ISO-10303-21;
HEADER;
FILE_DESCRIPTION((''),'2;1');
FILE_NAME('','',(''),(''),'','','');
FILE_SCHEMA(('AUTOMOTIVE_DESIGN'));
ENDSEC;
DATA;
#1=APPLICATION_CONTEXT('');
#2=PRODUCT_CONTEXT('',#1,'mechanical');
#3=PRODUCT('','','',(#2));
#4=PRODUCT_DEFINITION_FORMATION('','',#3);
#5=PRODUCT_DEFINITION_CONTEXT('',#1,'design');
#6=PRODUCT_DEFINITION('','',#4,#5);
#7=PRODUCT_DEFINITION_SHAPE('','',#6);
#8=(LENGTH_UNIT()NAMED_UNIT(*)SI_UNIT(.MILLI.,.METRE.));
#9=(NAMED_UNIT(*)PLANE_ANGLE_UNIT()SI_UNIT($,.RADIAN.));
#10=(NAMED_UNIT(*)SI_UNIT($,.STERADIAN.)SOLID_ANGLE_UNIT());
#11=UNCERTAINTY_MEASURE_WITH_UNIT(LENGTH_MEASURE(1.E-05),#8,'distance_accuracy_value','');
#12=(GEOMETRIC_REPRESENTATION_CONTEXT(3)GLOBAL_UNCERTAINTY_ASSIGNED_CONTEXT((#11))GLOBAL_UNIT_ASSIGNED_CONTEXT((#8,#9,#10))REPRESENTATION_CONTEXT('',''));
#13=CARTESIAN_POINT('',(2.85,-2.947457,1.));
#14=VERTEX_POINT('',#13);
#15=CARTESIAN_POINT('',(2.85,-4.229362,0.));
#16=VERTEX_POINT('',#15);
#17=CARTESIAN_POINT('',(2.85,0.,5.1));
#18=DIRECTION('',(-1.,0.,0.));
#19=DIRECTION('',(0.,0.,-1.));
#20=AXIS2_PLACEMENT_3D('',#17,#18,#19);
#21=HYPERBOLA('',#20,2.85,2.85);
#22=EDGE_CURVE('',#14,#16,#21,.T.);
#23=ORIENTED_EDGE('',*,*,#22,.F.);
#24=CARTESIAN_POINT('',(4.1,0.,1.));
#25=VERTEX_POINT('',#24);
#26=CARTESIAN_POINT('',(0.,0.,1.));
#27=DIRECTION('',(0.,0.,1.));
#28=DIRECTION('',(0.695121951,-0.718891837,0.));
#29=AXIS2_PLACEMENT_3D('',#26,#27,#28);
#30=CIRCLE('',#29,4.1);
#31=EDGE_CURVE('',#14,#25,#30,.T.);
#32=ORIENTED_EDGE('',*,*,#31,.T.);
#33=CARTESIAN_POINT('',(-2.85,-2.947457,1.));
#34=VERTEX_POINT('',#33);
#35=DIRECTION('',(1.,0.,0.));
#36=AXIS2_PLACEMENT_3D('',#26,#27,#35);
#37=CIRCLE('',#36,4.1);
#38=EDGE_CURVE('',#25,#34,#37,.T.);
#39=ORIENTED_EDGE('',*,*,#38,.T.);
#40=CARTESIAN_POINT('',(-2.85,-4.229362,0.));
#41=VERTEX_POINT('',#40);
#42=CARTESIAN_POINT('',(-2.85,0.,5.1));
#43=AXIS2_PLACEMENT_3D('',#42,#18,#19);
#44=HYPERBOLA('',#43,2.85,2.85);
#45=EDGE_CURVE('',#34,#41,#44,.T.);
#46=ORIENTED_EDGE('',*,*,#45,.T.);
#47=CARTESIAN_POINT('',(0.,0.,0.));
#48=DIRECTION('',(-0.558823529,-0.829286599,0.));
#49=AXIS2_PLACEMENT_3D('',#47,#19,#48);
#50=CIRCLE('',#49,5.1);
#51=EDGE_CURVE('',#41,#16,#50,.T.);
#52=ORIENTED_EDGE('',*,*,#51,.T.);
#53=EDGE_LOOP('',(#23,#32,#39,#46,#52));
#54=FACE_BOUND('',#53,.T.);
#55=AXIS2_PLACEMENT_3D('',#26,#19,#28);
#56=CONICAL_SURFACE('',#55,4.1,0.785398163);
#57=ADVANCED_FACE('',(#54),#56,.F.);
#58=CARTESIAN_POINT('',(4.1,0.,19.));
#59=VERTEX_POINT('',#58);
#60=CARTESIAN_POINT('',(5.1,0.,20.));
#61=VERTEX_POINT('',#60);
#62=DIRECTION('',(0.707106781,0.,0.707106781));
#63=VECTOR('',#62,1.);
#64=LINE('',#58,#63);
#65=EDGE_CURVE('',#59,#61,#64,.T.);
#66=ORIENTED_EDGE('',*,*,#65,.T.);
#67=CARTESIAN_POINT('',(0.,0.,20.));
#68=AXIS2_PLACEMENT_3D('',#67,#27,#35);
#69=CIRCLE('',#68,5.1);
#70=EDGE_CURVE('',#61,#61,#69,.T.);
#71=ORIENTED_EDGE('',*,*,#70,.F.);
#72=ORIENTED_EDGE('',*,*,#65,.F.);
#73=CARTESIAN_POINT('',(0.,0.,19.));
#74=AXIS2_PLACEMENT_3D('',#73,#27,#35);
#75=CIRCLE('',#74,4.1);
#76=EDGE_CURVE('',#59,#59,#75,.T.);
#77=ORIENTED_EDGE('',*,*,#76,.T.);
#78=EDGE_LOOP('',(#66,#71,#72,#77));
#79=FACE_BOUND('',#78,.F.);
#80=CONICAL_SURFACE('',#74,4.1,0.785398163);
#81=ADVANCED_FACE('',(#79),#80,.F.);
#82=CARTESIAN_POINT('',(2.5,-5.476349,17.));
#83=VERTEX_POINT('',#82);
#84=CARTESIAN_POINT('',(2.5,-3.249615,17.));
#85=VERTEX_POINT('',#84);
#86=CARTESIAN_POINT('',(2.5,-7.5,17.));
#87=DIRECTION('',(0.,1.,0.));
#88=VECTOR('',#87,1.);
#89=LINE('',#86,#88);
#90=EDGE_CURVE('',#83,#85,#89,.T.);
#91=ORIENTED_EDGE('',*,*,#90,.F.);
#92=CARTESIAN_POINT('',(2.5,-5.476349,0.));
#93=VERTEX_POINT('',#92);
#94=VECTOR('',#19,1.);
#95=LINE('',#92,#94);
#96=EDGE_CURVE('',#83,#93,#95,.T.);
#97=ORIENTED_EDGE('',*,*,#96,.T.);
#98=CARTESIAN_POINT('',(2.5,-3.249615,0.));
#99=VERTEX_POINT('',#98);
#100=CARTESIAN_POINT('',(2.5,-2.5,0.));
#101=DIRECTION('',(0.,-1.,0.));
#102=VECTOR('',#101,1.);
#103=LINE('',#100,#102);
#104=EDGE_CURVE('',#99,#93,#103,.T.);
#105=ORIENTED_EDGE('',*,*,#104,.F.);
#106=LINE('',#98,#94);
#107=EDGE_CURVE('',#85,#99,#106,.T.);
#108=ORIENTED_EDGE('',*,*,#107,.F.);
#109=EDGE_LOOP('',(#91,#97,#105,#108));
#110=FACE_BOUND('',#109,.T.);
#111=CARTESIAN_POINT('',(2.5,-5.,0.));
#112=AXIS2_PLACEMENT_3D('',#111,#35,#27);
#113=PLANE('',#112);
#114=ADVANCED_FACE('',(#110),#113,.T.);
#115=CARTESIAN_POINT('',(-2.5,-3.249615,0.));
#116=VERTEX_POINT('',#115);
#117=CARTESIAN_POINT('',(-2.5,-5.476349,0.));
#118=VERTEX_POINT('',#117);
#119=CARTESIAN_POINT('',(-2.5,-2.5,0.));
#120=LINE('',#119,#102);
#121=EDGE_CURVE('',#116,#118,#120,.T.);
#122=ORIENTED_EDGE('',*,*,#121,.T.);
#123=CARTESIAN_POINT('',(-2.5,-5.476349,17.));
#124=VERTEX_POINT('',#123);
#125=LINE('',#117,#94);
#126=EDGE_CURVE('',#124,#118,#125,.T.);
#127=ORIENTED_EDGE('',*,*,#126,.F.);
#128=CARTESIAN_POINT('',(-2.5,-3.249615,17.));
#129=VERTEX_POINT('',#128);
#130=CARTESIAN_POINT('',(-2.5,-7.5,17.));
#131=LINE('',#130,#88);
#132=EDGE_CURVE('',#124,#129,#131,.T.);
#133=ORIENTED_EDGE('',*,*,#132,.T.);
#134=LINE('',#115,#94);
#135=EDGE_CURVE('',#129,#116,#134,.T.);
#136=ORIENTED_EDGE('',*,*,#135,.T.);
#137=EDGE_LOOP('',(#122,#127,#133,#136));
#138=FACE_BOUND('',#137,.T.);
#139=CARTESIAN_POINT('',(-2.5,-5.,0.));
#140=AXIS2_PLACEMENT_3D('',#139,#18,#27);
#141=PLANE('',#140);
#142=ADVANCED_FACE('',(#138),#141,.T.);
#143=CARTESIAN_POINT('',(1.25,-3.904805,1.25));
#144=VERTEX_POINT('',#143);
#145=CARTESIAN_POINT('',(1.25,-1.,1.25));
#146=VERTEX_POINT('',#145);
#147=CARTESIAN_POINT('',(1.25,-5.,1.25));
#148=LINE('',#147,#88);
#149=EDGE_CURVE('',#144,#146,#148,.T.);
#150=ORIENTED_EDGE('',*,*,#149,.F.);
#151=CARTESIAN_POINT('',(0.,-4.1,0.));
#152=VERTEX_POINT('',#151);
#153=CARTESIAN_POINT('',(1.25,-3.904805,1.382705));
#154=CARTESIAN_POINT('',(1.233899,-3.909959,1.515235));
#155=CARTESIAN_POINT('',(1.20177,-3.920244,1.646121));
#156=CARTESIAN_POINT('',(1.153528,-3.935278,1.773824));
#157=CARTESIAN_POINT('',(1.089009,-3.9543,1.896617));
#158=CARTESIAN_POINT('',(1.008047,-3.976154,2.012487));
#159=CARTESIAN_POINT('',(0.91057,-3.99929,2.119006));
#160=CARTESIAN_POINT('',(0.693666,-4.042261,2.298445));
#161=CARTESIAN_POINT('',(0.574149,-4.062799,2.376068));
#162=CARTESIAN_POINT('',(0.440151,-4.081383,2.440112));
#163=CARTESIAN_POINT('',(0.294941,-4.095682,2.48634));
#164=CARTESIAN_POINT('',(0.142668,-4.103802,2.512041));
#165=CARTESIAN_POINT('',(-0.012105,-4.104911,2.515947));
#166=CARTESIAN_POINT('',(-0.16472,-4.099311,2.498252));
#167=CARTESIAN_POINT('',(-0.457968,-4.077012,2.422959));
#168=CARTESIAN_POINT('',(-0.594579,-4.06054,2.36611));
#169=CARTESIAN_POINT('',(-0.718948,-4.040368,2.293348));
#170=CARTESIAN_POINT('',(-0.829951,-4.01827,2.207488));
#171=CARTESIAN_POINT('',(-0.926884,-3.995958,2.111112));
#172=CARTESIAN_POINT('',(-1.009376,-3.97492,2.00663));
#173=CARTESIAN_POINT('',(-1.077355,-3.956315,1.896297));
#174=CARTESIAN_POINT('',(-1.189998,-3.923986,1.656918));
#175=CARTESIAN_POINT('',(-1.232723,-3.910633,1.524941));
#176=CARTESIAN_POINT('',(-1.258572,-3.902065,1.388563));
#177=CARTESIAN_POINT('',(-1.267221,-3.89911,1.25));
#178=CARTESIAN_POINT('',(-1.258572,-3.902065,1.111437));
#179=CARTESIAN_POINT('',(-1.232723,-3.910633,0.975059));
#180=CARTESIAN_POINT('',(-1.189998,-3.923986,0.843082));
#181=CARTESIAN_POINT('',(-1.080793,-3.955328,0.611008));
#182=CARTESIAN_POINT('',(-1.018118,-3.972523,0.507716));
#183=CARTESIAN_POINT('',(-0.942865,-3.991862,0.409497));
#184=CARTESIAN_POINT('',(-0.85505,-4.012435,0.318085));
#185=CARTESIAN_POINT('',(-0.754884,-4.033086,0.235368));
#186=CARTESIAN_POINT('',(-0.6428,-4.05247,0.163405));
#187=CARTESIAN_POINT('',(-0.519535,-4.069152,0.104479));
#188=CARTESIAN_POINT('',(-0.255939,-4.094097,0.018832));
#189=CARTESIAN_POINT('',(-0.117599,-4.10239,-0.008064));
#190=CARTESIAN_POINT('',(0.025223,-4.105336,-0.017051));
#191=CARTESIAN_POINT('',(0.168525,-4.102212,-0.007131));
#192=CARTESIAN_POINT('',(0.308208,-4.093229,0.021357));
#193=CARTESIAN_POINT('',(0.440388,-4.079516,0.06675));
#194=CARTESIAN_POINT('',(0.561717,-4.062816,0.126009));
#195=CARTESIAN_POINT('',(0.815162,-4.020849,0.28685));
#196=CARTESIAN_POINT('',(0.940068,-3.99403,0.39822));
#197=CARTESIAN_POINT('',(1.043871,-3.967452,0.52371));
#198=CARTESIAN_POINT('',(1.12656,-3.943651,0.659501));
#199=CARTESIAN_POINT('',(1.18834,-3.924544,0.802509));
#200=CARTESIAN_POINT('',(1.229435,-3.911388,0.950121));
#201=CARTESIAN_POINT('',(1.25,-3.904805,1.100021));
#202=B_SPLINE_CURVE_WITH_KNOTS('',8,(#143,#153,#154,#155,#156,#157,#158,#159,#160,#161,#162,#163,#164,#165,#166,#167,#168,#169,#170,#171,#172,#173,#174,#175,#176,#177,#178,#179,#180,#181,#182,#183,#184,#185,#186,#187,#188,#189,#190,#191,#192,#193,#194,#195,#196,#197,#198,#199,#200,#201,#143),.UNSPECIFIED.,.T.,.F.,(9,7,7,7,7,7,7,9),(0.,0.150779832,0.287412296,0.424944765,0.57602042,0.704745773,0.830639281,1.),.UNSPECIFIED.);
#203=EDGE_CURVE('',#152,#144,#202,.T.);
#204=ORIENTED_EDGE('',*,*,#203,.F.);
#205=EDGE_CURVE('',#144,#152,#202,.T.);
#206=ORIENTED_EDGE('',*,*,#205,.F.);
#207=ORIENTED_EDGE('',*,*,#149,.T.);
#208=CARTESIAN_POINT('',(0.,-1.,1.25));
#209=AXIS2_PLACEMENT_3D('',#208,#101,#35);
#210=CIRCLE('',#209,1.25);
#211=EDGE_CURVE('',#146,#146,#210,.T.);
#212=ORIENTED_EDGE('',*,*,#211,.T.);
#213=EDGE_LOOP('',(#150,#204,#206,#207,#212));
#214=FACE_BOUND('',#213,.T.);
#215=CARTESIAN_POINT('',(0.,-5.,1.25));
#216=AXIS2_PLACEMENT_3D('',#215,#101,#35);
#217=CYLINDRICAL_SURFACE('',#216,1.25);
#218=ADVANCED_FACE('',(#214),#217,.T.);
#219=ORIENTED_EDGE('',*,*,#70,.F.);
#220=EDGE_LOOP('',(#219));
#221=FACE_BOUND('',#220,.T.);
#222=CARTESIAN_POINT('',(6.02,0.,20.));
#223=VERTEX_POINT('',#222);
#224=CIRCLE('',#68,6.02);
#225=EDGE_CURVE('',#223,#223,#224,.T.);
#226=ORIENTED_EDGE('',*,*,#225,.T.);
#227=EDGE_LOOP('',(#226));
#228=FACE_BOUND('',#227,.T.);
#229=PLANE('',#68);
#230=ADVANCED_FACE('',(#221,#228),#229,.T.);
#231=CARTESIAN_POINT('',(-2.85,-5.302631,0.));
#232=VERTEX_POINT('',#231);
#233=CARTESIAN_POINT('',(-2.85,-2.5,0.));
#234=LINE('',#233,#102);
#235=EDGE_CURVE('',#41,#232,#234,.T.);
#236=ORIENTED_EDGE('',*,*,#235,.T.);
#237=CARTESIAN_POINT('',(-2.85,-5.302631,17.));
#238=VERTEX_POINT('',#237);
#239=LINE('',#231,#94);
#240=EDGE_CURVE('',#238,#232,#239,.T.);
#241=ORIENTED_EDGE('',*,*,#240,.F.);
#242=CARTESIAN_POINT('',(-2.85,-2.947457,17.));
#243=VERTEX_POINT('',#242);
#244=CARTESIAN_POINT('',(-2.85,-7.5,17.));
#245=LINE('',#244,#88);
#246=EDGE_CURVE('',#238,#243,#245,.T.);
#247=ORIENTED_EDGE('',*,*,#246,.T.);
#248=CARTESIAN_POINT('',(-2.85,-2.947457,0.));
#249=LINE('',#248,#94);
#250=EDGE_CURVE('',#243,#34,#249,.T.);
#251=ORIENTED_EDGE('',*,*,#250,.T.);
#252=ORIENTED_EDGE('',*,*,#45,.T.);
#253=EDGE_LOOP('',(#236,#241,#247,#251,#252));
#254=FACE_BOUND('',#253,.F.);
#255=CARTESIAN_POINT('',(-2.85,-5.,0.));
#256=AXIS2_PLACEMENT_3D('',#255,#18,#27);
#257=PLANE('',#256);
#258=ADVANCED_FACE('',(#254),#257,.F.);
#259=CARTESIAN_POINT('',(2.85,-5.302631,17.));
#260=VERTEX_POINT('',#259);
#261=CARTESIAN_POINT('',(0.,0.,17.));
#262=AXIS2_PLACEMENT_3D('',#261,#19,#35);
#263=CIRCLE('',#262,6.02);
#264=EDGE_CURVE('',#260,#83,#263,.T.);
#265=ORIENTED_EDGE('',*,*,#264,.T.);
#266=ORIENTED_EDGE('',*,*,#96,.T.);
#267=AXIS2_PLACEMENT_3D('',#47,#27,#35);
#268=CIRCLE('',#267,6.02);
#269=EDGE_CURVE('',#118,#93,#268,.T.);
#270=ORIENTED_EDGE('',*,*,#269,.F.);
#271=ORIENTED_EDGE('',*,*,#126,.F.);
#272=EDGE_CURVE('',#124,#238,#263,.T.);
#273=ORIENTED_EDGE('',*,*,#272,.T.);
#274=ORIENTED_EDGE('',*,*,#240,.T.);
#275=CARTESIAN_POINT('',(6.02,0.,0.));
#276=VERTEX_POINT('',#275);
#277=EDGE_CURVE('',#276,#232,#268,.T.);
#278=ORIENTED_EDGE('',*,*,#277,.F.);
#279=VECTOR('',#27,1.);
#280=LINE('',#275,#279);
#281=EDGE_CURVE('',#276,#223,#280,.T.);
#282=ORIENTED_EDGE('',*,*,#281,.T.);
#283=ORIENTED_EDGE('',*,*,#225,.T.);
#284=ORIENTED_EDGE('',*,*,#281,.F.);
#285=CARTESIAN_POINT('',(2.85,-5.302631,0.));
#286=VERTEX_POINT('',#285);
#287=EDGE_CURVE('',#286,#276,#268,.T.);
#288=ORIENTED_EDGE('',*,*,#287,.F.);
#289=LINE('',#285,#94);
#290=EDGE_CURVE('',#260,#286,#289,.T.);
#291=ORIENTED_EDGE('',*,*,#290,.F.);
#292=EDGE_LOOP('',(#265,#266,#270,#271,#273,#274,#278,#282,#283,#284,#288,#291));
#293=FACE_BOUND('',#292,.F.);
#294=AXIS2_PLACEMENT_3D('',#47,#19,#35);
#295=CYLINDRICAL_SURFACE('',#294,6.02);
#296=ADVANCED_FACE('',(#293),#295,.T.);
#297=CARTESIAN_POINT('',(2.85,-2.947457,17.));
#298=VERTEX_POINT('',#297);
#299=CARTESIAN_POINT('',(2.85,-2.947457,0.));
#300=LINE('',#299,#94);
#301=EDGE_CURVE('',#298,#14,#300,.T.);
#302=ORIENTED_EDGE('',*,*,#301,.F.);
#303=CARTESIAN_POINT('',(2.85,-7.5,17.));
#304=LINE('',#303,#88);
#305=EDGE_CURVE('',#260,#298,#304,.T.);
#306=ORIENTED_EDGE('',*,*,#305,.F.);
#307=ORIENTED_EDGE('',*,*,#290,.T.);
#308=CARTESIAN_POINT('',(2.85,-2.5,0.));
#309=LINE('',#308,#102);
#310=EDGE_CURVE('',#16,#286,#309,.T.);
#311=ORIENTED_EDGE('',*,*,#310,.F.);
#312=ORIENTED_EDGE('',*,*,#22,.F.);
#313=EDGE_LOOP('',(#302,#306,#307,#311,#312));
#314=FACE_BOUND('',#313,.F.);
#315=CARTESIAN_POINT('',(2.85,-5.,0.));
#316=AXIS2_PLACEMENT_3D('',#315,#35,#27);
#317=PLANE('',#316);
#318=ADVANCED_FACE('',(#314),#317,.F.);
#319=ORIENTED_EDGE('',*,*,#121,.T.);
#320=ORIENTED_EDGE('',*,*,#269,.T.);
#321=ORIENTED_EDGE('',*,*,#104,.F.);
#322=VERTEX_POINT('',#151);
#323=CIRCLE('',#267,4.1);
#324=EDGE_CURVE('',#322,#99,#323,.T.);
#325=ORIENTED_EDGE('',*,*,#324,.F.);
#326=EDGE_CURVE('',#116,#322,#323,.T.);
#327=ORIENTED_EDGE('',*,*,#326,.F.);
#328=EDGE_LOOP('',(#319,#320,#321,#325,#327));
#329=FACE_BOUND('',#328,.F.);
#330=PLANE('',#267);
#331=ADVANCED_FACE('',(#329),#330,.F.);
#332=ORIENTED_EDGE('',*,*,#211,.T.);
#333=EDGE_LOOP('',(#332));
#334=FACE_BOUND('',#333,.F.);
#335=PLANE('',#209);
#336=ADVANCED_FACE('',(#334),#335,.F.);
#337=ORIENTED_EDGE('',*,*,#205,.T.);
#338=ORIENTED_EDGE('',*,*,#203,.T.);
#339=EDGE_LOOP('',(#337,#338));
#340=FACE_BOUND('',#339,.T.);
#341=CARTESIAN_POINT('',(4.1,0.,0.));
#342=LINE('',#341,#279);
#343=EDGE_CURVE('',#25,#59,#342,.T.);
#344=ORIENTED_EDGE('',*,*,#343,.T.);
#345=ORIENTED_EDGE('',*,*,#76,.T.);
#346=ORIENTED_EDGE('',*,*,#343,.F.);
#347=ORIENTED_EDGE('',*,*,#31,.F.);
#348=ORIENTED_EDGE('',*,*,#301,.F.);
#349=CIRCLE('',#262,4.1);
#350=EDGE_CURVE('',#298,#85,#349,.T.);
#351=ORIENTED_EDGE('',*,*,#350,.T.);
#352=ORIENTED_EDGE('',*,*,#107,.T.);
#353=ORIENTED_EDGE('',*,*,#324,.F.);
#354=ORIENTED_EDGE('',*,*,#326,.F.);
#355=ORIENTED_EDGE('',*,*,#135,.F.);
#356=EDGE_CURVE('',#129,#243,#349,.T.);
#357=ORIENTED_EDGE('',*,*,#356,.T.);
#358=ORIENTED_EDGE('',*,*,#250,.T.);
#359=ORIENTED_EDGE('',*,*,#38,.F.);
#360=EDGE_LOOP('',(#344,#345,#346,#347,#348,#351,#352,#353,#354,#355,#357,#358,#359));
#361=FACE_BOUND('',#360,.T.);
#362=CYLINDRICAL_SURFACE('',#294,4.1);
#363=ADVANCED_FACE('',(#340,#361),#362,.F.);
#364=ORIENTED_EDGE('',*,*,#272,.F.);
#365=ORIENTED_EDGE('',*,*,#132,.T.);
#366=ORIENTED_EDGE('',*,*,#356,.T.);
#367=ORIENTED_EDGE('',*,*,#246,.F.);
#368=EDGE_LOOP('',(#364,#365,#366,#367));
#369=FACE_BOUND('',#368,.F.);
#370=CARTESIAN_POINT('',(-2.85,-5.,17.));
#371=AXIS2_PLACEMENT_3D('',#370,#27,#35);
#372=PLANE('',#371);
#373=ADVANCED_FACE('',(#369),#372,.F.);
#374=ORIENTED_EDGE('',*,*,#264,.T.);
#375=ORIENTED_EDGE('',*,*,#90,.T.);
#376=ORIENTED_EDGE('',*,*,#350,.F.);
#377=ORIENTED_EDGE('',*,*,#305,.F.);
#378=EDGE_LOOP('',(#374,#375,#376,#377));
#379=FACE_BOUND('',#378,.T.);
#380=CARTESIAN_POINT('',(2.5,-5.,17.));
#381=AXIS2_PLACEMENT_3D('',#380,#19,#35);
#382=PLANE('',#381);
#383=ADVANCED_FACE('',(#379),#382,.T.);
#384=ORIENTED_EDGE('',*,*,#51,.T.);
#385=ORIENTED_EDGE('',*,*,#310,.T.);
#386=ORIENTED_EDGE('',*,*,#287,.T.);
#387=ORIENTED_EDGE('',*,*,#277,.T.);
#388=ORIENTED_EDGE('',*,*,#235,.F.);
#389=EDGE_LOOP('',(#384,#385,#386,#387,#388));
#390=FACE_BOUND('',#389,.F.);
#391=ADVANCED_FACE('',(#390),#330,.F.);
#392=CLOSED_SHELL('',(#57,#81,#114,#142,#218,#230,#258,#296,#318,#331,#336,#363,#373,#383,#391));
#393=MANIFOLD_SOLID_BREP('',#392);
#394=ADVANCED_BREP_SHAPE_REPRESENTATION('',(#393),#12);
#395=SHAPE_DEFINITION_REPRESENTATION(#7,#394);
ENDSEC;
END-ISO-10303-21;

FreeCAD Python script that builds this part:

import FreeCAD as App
import Part
import Sketcher
Q = App.Units.Quantity


def edges_at(feature, points):
    """Names of the edges that pass closest to the given points."""
    edges = feature.Shape.Edges
    near = lambda p: min(range(len(edges)), key=lambda i: edges[i].distToShape(Part.Vertex(*p))[0])
    return sorted({f"Edge{near(p) + 1}" for p in points})


def add_polygon(sketch, points):
    """Adds a closed chain of lines whose ends are joined by coincident constraints."""
    first, n = sketch.GeometryCount, len(points)
    for a, b in zip(points, points[1:] + points[:1]):
        sketch.addGeometry(Part.LineSegment(App.Vector(*a, 0), App.Vector(*b, 0)), False)
    for i in range(n):
        sketch.addConstraint(Sketcher.Constraint("Coincident", first + i, 2, first + (i + 1) % n, 1))

doc = App.newDocument("Part")
params = doc.addObject("Spreadsheet::Sheet", "Params")
for row, (alias, value) in enumerate([
    ("sketch1_diameter", "8.2 mm"),
    ("sketch1_diameter2", "12.04 mm"),
    ("pad1_length", "20 mm"),
    ("sketch2_diameter", "2.5 mm"),
    ("pad2_length", "4 mm"),
    ("sketch3_height", "17 mm"),
    ("sketch3_width", "0.35 mm"),
    ("pocket1_length", "5 mm"),
    ("chamfer_size", "1 mm"),
], start=1):
    params.set(f"A{row}", alias)
    params.set(f"B{row}", "=" + value)
    params.setAlias(f"B{row}", alias)

body = doc.addObject("PartDesign::Body", "Body")

# Sketch on XY plane
sketch1 = body.newObject("Sketcher::SketchObject", "Sketch")
sketch1.AttachmentSupport = (doc.getObject("XY_Plane"), [""])
sketch1.MapMode = "FlatFace"
sketch1.addGeometry([
    Part.Circle(App.Vector(0, 0, 0), App.Vector(0, 0, 1), 6),
    Part.Circle(App.Vector(0, 0, 0), App.Vector(0, 0, 1), 4.1),
], False)
sketch1.addConstraint([
    Sketcher.Constraint("Coincident", 0, 3, -1, 1),
    Sketcher.Constraint("Coincident", 1, 3, -1, 1),
    Sketcher.Constraint("Diameter", 1, Q("8.2 mm")),
    Sketcher.Constraint("Diameter", 0, Q("12.04 mm")),
])
sketch1.setExpression("Constraints[2]", "Params.sketch1_diameter")
sketch1.setExpression("Constraints[3]", "Params.sketch1_diameter2")
pad1 = body.newObject("PartDesign::Pad", "Pad")
pad1.Profile = sketch1
pad1.setExpression("Length", "Params.pad1_length")

# Sketch on XZ plane
sketch2 = body.newObject("Sketcher::SketchObject", "Sketch001")
sketch2.AttachmentSupport = (doc.getObject("XZ_Plane"), [""])
sketch2.MapMode = "FlatFace"
sketch2.AttachmentOffset = App.Placement(App.Vector(0, 0, 5), App.Rotation())
sketch2.addGeometry(Part.Circle(App.Vector(0, 1.2, 0), App.Vector(0, 0, 1), 1.2), False)
sketch2.addConstraint([
    Sketcher.Constraint("PointOnObject", 0, 3, -2),
    Sketcher.Constraint("Diameter", 0, Q("2.5 mm")),
    Sketcher.Constraint("DistanceY", -1, 1, 0, 3, Q("1.25 mm")),
])
sketch2.setExpression("Constraints[1]", "Params.sketch2_diameter")
pad2 = body.newObject("PartDesign::Pad", "Pad001")
pad2.Profile = sketch2
pad2.setExpression("Length", "Params.pad2_length")
pad2.Reversed = True

# Sketch on XZ plane
sketch3 = body.newObject("Sketcher::SketchObject", "Sketch002")
sketch3.AttachmentSupport = (doc.getObject("XZ_Plane"), [""])
sketch3.MapMode = "FlatFace"
sketch3.AttachmentOffset = App.Placement(App.Vector(0, 0, 5), App.Rotation())
add_polygon(sketch3, [(-2.85, 17), (-2.85, 0), (-2.5, 0), (-2.5, 17)])  # lines 0-3
add_polygon(sketch3, [(2.5, 17), (2.5, 0), (2.85, 0), (2.85, 17)])  # lines 4-7
sketch3.addConstraint([
    Sketcher.Constraint("Vertical", 0),
    Sketcher.Constraint("Horizontal", 1),
    Sketcher.Constraint("Vertical", 2),
    Sketcher.Constraint("Horizontal", 3),
    Sketcher.Constraint("Vertical", 4),
    Sketcher.Constraint("Horizontal", 5),
    Sketcher.Constraint("Vertical", 6),
    Sketcher.Constraint("Horizontal", 7),
    Sketcher.Constraint("Symmetric", 1, 2, 4, 2, -1, 1),
    Sketcher.Constraint("Symmetric", 0, 2, 5, 2, -2),
    Sketcher.Constraint("Horizontal", 3, 2, 6, 2),
    Sketcher.Constraint("DistanceY", 0, 2, 0, 1, Q("17 mm")),
    Sketcher.Constraint("DistanceX", 1, 2, 4, 2, Q("5 mm")),
    Sketcher.Constraint("DistanceX", 1, 1, 1, 2, Q("0.35 mm")),
])
sketch3.setExpression("Constraints[19]", "Params.sketch3_height")
sketch3.setExpression("Constraints[21]", "Params.sketch3_width")
pocket1 = body.newObject("PartDesign::Pocket", "Pocket")
pocket1.Profile = sketch3
pocket1.setExpression("Length", "Params.pocket1_length")
pocket1.Midplane = True
doc.recompute()

chamfer = body.newObject("PartDesign::Chamfer", "Chamfer")
chamfer.Base = (pocket1, edges_at(pocket1, [(-4.1, 0, 20), (-1.601, 3.775, 0)]))
chamfer.setExpression("Size", "Params.chamfer_size")

doc.recompute()
